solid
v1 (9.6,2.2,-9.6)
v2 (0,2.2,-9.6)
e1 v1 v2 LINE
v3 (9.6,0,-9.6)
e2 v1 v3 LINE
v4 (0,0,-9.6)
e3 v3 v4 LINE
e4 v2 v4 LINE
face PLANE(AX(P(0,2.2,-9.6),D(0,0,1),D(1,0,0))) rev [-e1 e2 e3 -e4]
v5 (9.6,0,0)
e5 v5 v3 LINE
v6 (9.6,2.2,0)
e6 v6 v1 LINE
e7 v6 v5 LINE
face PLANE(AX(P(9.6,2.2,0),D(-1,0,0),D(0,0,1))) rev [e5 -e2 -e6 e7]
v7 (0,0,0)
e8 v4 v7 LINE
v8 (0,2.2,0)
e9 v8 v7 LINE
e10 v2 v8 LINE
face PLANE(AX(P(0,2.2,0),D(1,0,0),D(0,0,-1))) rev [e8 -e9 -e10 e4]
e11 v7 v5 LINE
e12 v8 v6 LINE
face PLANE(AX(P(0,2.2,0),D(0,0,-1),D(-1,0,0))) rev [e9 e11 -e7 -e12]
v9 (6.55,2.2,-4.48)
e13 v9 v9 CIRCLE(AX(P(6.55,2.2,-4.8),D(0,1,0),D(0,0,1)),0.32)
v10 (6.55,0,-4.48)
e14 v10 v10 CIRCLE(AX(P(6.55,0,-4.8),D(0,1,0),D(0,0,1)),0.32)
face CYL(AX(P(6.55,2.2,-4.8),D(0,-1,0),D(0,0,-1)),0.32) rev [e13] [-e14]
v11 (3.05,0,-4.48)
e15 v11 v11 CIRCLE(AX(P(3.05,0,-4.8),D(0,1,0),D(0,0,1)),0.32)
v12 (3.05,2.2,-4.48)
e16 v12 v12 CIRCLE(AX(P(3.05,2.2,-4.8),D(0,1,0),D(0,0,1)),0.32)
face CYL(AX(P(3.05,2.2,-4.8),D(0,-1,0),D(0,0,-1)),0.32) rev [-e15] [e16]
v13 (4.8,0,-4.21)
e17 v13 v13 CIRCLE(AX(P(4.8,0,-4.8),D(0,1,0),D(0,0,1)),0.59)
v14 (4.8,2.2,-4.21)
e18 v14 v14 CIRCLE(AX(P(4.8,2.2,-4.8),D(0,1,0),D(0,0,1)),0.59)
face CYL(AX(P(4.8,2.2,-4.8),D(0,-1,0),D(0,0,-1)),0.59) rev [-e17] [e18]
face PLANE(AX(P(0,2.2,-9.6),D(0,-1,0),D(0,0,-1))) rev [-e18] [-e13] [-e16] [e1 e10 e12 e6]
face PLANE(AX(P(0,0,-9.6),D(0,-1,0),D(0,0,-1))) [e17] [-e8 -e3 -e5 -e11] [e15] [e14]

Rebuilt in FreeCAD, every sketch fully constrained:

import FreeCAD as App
import Part
import Sketcher

V = App.Vector
Q = App.Units.Quantity

doc = App.newDocument("Part")
body = doc.addObject("PartDesign::Body", "Body")

sketch1 = body.newObject("Sketcher::SketchObject", "Sketch")
sketch1.AttachmentSupport = (doc.getObject("XZ_Plane"), [""])
sketch1.MapMode = "FlatFace"
sketch1.addGeometry([
    Part.LineSegment(V(0, -9.6, 0), V(0, 0, 0)),
    Part.LineSegment(V(0, 0, 0), V(9.6, 0, 0)),
    Part.LineSegment(V(9.6, 0, 0), V(9.6, -9.6, 0)),
    Part.LineSegment(V(9.6, -9.6, 0), V(0, -9.6, 0)),
    Part.Circle(V(3.05, -4.8, 0), V(0, 0, 1), 0.32),
    Part.Circle(V(4.8, -4.8, 0), V(0, 0, 1), 0.59),
    Part.Circle(V(6.55, -4.8, 0), V(0, 0, 1), 0.32),
], False)
sketch1.addConstraint([
    Sketcher.Constraint("Coincident", 0, 2, 1, 1),
    Sketcher.Constraint("Coincident", 1, 2, 2, 1),
    Sketcher.Constraint("Coincident", 2, 2, 3, 1),
    Sketcher.Constraint("Coincident", 3, 2, 0, 1),
    Sketcher.Constraint("Vertical", 0),
    Sketcher.Constraint("Horizontal", 1),
    Sketcher.Constraint("Vertical", 2),
    Sketcher.Constraint("Horizontal", 3),
    Sketcher.Constraint("Coincident", 0, 2, -1, 1),
    Sketcher.Constraint("Equal", 4, 6),
    Sketcher.Constraint("Horizontal", 4, 3, 5, 3),
    Sketcher.Constraint("Horizontal", 5, 3, 6, 3),
    Sketcher.Constraint("Equal", 3, 0),
    Sketcher.Constraint("Diameter", 4, Q("0.64 mm")),
    Sketcher.Constraint("Diameter", 5, Q("1.18 mm")),
    Sketcher.Constraint("DistanceX", 1, 1, 1, 2, Q("9.6 mm")),
    Sketcher.Constraint("DistanceY", 4, 3, -1, 1, Q("4.8 mm")),
    Sketcher.Constraint("DistanceX", -1, 1, 5, 3, Q("4.8 mm")),
    Sketcher.Constraint("DistanceX", 4, 3, 6, 3, Q("3.5 mm")),
    Sketcher.Constraint("DistanceX", -1, 1, 4, 3, Q("3.05 mm")),
])
pad1 = body.newObject("PartDesign::Pad", "Pad")
pad1.Profile = sketch1
pad1.Length = 2.2
pad1.Reversed = True

doc.recompute()
